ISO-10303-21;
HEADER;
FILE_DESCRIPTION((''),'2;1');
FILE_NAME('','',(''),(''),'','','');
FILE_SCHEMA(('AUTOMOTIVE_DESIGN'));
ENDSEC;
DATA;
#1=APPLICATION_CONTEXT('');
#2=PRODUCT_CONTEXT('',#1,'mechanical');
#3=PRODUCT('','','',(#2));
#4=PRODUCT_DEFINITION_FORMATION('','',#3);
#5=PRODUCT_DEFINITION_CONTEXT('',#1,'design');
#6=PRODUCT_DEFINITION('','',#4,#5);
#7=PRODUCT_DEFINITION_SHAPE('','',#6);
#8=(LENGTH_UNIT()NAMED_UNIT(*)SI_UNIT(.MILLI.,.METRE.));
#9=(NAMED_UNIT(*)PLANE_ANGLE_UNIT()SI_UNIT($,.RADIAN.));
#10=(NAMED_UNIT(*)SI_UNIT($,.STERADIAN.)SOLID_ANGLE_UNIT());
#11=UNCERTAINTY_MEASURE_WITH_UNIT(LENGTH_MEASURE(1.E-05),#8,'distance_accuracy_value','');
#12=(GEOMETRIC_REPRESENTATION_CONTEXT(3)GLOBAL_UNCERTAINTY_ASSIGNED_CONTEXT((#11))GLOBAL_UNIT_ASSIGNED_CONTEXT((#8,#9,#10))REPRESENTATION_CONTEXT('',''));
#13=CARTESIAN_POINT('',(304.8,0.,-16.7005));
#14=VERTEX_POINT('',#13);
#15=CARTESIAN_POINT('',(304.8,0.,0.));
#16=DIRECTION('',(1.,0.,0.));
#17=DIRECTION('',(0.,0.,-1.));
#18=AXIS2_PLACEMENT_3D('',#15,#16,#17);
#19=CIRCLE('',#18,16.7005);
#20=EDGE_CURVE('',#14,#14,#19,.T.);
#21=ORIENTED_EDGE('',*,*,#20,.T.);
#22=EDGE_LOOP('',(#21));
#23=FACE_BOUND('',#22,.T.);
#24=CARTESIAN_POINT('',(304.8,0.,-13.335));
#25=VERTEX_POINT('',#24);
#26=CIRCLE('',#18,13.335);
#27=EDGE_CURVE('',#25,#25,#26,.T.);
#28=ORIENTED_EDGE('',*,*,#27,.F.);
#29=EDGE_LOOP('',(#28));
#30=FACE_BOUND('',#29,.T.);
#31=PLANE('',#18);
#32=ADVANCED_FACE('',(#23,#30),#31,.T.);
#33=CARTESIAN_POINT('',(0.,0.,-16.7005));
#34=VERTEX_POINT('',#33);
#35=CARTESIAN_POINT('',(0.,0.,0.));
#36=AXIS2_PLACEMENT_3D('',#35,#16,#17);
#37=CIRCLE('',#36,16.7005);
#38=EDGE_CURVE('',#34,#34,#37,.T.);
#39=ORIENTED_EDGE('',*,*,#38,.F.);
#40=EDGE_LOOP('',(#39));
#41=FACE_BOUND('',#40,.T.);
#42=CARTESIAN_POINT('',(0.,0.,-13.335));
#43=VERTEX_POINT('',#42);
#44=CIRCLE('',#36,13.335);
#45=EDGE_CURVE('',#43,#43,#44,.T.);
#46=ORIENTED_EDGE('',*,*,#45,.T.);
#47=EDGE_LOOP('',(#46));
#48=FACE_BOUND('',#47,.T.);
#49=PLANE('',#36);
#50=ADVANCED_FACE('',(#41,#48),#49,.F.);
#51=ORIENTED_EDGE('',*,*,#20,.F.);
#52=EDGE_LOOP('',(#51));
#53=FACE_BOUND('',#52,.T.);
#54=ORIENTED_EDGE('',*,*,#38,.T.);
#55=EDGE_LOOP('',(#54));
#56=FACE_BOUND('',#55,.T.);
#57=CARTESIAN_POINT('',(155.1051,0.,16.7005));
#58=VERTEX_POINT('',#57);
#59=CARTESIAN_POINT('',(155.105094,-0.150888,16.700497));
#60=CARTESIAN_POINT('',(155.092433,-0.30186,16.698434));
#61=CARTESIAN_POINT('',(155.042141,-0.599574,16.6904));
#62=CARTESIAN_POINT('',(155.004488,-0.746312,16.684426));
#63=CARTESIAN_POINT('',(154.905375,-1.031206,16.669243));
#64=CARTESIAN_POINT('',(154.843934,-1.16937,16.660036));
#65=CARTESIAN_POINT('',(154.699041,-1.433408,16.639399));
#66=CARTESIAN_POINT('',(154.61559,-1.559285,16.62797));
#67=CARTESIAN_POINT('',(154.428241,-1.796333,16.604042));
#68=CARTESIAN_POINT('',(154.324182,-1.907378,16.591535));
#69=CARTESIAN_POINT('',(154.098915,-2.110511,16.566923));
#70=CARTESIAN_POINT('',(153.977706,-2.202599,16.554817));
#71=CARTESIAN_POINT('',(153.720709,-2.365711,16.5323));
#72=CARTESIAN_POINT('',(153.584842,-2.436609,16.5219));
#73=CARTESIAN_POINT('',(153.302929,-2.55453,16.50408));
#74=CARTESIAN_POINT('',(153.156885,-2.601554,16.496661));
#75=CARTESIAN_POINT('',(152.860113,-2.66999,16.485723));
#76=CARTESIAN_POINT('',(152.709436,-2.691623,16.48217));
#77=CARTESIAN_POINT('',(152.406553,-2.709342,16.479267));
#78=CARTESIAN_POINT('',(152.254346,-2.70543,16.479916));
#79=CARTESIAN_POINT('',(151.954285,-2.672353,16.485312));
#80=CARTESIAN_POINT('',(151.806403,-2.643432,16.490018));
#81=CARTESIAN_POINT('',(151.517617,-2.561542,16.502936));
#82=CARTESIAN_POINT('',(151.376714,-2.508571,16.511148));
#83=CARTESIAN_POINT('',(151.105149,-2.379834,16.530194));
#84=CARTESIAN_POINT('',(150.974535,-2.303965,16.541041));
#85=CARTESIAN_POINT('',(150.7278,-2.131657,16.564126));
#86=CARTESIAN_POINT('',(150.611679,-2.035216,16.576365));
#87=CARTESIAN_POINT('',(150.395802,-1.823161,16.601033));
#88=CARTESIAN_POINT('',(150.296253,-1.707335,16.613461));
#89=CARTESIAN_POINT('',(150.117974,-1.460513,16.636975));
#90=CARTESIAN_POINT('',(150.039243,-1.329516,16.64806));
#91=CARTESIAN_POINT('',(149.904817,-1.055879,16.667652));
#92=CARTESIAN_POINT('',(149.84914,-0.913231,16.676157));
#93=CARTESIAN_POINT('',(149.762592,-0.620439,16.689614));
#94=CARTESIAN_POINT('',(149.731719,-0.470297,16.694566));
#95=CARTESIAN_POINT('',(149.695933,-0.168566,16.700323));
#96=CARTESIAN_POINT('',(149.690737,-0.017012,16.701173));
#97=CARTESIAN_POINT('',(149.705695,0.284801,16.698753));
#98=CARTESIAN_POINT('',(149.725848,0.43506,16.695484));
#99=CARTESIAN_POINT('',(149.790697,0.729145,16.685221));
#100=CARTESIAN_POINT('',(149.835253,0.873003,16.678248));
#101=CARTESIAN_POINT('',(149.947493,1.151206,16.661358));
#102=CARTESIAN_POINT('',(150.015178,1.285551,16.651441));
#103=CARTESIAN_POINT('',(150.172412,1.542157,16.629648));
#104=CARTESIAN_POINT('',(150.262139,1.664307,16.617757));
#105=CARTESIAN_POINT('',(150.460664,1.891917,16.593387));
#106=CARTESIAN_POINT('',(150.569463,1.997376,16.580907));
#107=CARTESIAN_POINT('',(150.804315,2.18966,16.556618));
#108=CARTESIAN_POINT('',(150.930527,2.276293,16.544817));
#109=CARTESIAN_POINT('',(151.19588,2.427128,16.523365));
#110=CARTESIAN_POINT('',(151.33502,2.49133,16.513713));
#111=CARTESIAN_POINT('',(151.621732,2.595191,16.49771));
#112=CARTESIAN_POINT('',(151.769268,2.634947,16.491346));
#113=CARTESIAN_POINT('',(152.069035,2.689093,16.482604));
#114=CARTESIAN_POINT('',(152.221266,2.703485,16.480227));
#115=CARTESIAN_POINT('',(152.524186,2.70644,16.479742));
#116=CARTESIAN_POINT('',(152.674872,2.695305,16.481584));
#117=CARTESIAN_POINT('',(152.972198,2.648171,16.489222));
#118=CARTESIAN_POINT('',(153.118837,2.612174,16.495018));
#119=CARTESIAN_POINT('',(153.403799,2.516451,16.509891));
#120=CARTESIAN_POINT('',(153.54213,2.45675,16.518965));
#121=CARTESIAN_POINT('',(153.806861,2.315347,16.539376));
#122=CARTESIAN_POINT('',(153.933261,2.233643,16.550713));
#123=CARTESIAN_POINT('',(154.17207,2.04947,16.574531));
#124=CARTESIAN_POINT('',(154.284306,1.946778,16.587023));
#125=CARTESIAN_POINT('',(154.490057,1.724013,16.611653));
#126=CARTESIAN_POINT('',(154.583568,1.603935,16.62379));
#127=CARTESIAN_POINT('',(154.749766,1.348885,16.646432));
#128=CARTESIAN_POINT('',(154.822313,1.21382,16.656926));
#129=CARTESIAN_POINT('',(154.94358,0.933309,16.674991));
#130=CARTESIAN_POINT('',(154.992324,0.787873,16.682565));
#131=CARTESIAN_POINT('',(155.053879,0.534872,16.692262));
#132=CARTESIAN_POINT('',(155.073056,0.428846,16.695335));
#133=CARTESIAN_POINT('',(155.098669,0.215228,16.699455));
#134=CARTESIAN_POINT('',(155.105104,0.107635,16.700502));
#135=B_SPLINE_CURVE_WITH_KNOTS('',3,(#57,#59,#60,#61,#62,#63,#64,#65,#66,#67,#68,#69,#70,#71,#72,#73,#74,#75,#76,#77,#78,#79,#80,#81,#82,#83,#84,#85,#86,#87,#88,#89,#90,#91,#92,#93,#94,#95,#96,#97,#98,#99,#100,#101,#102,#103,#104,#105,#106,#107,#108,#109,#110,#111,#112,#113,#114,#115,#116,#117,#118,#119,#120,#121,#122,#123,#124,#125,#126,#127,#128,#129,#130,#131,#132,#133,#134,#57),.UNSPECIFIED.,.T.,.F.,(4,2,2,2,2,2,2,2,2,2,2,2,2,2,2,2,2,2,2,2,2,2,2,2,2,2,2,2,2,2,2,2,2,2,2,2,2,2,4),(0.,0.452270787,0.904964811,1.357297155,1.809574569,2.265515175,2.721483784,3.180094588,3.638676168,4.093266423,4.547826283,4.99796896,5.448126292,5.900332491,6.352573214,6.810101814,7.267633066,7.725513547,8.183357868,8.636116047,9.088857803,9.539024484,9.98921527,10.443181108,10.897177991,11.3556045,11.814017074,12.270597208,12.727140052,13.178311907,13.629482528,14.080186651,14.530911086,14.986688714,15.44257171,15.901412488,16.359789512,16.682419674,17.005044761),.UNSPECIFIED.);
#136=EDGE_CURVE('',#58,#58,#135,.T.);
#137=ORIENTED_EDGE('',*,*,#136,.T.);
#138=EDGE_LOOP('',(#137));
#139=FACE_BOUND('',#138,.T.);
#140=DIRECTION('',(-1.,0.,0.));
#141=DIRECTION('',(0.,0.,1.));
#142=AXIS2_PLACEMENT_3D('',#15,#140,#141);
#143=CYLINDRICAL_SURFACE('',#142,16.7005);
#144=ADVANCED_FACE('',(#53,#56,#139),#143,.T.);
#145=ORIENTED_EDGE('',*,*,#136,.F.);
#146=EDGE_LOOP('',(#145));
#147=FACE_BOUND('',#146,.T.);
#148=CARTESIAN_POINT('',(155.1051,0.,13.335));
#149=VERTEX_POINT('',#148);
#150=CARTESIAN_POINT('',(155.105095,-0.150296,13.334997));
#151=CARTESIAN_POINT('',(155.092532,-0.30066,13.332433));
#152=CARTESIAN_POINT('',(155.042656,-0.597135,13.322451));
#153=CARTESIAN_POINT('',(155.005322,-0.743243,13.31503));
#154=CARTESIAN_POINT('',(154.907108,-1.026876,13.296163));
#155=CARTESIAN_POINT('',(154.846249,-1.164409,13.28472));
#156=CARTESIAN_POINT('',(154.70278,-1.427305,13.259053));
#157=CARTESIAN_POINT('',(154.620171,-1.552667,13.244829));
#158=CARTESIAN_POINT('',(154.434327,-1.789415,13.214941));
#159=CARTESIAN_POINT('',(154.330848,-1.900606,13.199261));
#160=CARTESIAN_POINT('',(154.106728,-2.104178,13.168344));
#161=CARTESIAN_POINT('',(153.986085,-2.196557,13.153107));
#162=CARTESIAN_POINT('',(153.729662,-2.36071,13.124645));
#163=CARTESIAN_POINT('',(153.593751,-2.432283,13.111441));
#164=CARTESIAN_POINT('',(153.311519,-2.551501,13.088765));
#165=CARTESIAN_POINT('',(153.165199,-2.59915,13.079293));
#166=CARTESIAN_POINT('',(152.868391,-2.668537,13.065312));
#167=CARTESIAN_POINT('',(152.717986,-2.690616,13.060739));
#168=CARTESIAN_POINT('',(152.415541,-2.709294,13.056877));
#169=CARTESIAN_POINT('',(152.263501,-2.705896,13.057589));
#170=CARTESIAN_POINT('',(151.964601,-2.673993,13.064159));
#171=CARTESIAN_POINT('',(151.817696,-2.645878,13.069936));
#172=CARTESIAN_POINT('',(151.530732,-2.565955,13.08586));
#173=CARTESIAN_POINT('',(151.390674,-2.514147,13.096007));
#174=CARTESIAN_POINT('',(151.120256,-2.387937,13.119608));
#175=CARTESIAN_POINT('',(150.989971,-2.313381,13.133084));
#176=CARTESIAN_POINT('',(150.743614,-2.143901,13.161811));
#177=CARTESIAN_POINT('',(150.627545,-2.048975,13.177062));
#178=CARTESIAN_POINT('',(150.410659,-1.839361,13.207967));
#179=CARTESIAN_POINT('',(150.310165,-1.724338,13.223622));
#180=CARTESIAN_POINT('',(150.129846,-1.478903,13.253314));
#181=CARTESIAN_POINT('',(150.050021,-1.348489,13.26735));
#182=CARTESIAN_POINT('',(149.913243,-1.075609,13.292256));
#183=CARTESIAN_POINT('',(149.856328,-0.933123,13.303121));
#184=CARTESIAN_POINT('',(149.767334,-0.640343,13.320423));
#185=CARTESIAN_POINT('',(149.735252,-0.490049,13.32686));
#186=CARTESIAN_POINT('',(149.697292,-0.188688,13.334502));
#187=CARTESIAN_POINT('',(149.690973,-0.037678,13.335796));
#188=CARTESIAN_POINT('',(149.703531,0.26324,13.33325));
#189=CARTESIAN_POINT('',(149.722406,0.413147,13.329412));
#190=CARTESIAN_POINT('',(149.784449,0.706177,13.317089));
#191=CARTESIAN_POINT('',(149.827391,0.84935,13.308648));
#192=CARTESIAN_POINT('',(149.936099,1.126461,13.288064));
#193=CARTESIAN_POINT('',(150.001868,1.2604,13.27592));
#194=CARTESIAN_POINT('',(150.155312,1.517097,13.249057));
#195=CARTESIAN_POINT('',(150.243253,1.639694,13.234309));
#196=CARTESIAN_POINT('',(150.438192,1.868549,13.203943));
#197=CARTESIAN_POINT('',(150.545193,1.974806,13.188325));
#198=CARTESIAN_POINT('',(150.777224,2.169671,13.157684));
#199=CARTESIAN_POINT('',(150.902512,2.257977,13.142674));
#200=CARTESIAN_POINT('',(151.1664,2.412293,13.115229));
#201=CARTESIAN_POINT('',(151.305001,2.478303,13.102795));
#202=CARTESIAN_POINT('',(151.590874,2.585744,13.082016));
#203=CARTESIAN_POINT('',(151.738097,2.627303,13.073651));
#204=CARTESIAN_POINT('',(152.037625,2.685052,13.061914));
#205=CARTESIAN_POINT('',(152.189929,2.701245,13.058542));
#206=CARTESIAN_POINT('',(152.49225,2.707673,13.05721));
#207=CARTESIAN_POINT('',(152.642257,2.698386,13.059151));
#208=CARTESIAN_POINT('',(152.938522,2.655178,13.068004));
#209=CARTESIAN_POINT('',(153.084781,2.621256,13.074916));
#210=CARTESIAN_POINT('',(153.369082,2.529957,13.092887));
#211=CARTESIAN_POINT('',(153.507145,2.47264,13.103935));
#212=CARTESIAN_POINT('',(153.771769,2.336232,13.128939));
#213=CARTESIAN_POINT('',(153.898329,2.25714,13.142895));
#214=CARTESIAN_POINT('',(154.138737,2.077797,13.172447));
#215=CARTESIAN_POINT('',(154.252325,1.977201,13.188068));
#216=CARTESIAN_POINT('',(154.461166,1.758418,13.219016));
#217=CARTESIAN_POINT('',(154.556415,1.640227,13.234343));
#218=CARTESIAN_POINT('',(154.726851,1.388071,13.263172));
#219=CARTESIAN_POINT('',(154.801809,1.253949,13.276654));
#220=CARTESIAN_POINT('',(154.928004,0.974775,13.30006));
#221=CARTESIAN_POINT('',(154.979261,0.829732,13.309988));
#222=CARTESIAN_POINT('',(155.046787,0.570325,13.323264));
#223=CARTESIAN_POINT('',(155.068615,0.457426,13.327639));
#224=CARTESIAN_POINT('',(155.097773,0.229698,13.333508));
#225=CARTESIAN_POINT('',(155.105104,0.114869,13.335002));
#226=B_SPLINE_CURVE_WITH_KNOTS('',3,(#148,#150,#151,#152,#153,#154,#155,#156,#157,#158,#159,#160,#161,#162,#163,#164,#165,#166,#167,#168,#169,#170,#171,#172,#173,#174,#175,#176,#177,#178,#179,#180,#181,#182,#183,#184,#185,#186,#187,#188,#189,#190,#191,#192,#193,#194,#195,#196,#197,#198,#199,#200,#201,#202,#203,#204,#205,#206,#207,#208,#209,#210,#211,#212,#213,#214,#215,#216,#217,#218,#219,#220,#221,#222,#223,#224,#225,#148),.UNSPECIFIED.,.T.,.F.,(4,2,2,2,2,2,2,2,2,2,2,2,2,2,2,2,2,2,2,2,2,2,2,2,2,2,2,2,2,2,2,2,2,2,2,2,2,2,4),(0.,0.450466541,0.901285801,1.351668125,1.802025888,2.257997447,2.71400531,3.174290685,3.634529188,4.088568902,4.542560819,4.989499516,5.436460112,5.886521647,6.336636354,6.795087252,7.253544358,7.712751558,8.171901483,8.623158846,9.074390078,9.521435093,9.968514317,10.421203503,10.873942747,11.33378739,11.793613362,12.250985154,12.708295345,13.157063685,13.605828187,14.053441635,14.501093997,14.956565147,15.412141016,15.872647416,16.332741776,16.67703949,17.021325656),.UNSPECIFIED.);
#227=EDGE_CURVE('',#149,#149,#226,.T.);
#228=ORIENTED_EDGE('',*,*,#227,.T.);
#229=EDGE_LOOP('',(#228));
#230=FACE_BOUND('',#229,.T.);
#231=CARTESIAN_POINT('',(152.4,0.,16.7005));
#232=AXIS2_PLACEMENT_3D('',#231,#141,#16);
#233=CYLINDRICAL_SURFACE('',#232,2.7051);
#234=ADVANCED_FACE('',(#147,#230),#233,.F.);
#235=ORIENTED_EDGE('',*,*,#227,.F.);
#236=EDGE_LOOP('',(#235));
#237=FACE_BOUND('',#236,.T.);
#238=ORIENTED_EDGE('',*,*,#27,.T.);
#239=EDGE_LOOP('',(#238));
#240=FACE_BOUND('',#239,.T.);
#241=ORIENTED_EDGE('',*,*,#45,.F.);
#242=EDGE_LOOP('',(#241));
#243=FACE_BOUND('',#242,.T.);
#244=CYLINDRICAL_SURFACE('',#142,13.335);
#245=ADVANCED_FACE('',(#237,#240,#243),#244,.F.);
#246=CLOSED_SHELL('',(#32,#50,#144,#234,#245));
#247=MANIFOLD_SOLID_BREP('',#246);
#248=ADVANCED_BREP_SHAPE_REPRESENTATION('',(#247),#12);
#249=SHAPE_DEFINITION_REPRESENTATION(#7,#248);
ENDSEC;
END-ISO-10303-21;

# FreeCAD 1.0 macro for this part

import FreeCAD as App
import Part
import Sketcher
from FreeCAD import Vector
Q = App.Units.Quantity

doc = App.newDocument("Part")
body = doc.addObject("PartDesign::Body", "Body")

# Sketch on YZ plane
sketch1 = body.newObject("Sketcher::SketchObject", "Sketch")
sketch1.AttachmentSupport = (doc.getObject("YZ_Plane"), [""])
sketch1.MapMode = "FlatFace"
sketch1.addGeometry([
    Part.Circle(Vector(0, 0, 0), Vector(0, 0, 1), 17),
    Part.Circle(Vector(0, 0, 0), Vector(0, 0, 1), 13),
], False)
sketch1.addConstraint([
    Sketcher.Constraint("Coincident", 0, 3, -1, 1),
    Sketcher.Constraint("Coincident", 1, 3, -1, 1),
    Sketcher.Constraint("Diameter", 1, Q("1.05 in")),
    Sketcher.Constraint("Diameter", 0, Q("1.315 in")),
])
pad1 = body.newObject("PartDesign::Pad", "Pad")
pad1.Profile = sketch1
pad1.Length = Q("12 in")

# Sketch on XY plane
sketch2 = body.newObject("Sketcher::SketchObject", "Sketch001")
sketch2.AttachmentSupport = (doc.getObject("XY_Plane"), [""])
sketch2.MapMode = "FlatFace"
sketch2.AttachmentOffset = App.Placement(Vector(0, 0, 0.6575 * 25.4), App.Rotation())
sketch2.addGeometry(Part.Circle(Vector(152.4, 0, 0), Vector(0, 0, 1), 2.7), False)
sketch2.addConstraint([
    Sketcher.Constraint("PointOnObject", 0, 3, -1),
    Sketcher.Constraint("Diameter", 0, Q("0.213 in")),
    Sketcher.Constraint("DistanceX", -1, 1, 0, 3, Q("6 in")),
])
pocket1 = body.newObject("PartDesign::Pocket", "Pocket")
pocket1.Profile = sketch2
pocket1.Type = "UpToFirst"

doc.recompute()
